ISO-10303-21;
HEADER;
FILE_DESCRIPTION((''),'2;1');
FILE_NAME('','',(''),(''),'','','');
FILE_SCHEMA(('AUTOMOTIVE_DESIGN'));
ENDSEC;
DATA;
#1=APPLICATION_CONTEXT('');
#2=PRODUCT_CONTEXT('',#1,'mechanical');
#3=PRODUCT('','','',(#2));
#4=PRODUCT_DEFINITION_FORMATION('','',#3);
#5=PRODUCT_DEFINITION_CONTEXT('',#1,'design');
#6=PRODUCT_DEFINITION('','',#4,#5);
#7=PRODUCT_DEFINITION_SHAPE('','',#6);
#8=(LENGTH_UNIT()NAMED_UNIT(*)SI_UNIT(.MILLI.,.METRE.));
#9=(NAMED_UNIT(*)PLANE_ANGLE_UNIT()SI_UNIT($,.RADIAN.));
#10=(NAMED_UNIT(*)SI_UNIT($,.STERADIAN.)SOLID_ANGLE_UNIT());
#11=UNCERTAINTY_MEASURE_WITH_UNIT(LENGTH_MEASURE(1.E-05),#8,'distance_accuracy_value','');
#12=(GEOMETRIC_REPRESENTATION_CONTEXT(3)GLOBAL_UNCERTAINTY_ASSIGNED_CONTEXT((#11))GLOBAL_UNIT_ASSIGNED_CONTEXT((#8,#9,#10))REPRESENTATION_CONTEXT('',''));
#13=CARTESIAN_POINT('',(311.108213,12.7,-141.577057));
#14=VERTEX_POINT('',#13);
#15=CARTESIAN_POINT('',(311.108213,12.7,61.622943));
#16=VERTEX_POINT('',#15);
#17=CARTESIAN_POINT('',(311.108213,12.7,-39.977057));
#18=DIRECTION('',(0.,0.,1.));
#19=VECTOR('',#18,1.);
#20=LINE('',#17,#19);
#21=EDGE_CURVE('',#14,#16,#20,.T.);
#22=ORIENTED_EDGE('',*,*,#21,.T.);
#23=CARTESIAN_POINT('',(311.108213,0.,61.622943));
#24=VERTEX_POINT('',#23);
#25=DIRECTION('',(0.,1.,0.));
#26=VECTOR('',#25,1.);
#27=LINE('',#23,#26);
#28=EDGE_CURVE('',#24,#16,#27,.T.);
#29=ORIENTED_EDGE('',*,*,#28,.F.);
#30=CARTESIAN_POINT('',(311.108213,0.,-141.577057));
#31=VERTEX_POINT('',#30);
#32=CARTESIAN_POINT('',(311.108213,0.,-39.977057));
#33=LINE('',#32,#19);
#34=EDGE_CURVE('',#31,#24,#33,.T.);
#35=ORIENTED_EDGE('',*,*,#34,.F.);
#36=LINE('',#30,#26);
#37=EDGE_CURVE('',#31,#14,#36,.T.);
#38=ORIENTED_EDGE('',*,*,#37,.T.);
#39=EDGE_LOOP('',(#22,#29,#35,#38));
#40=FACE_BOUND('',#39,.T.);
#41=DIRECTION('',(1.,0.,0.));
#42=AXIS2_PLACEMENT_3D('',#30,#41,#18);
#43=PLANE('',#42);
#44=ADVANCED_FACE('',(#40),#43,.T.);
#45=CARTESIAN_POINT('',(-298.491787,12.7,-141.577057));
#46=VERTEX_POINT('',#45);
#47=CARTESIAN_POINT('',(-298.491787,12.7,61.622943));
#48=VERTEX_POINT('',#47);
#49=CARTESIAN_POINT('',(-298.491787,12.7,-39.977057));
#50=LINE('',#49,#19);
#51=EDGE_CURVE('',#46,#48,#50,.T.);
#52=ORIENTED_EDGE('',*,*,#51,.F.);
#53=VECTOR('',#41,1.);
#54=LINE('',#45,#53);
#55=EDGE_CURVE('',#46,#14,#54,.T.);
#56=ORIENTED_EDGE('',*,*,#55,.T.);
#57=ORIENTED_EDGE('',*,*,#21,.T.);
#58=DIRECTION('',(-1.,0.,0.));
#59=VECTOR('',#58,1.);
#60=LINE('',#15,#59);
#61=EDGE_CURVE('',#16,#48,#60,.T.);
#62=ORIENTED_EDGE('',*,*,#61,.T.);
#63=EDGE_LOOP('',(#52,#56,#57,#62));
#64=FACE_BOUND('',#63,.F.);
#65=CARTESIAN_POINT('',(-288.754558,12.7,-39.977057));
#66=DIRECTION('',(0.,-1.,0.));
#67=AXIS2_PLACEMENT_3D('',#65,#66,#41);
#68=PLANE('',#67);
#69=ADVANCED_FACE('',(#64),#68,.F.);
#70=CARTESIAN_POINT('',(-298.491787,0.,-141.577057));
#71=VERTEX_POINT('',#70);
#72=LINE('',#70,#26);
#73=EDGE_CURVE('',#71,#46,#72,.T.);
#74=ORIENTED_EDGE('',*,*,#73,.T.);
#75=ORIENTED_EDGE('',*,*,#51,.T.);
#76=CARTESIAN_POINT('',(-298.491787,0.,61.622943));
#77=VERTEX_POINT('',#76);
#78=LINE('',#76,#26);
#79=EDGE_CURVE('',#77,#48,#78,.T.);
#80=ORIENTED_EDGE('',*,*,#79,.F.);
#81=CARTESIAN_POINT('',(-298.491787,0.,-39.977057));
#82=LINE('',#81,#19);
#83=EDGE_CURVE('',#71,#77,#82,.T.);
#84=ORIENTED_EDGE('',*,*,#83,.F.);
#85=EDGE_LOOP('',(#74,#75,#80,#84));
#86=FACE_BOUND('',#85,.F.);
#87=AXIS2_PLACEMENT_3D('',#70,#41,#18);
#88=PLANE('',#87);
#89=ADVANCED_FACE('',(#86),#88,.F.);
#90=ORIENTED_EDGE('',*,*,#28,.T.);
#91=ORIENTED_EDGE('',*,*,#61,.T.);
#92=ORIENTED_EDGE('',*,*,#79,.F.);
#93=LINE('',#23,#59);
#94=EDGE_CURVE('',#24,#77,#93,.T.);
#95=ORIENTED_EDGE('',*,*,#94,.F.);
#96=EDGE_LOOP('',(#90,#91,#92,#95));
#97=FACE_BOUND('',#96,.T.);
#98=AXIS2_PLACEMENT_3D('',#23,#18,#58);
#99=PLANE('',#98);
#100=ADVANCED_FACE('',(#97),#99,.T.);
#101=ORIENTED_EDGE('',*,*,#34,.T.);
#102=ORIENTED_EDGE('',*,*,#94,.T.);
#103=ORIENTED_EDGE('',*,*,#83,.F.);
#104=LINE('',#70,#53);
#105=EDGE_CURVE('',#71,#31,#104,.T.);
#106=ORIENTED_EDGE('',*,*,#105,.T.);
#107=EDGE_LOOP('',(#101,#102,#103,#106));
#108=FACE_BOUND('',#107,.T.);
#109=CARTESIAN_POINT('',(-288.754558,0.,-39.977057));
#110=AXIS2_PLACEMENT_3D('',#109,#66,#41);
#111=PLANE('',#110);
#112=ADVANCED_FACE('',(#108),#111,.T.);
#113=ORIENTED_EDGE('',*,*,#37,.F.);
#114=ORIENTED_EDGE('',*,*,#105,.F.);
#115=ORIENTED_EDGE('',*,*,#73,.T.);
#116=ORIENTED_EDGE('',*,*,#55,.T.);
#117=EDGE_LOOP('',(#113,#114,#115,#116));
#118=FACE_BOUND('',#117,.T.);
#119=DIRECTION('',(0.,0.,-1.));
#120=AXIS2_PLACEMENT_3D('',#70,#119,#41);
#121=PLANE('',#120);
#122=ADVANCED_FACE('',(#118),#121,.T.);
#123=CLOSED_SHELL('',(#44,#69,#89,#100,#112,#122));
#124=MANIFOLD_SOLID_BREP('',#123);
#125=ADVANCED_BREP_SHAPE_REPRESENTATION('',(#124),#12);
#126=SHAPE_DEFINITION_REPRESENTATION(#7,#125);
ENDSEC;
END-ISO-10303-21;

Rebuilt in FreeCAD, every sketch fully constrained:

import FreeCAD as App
import Part
import Sketcher

V = App.Vector
Q = App.Units.Quantity


def add_polygon(sketch, points):
    """Adds a closed chain of lines whose ends are joined by coincident constraints."""
    first, n = sketch.GeometryCount, len(points)
    for a, b in zip(points, points[1:] + points[:1]):
        sketch.addGeometry(Part.LineSegment(App.Vector(*a, 0), App.Vector(*b, 0)), False)
    for i in range(n):
        sketch.addConstraint(Sketcher.Constraint("Coincident", first + i, 2, first + (i + 1) % n, 1))

doc = App.newDocument("Part")
body = doc.addObject("PartDesign::Body", "Body")

# Sketch on XZ plane
sketch1 = body.newObject("Sketcher::SketchObject", "Sketch")
sketch1.AttachmentSupport = (doc.getObject("XZ_Plane"), [""])
sketch1.MapMode = "FlatFace"
add_polygon(sketch1, [(-298, 62), (-298, -142), (311, -142), (311, 62)])  # lines 0-3
sketch1.addConstraint(Sketcher.Constraint("Vertical", 0))
sketch1.addConstraint(Sketcher.Constraint("Horizontal", 1))
sketch1.addConstraint(Sketcher.Constraint("Vertical", 2))
sketch1.addConstraint(Sketcher.Constraint("Horizontal", 3))
sketch1.addConstraint(Sketcher.Constraint("DistanceX", 1, 1, 1, 2, Q("24 in")))
sketch1.addConstraint(Sketcher.Constraint("DistanceY", 0, 2, 0, 1, Q("8 in")))
sketch1.addConstraint(Sketcher.Constraint("DistanceY", 0, 2, -1, 1, Q("5.5738999 in")))
sketch1.addConstraint(Sketcher.Constraint("DistanceX", 0, 2, -1, 1, Q("298.491787 mm")))
pad1 = body.newObject("PartDesign::Pad", "Pad")
pad1.Profile = sketch1
pad1.Length = Q("0.5 in")
pad1.Reversed = True

doc.recompute()
